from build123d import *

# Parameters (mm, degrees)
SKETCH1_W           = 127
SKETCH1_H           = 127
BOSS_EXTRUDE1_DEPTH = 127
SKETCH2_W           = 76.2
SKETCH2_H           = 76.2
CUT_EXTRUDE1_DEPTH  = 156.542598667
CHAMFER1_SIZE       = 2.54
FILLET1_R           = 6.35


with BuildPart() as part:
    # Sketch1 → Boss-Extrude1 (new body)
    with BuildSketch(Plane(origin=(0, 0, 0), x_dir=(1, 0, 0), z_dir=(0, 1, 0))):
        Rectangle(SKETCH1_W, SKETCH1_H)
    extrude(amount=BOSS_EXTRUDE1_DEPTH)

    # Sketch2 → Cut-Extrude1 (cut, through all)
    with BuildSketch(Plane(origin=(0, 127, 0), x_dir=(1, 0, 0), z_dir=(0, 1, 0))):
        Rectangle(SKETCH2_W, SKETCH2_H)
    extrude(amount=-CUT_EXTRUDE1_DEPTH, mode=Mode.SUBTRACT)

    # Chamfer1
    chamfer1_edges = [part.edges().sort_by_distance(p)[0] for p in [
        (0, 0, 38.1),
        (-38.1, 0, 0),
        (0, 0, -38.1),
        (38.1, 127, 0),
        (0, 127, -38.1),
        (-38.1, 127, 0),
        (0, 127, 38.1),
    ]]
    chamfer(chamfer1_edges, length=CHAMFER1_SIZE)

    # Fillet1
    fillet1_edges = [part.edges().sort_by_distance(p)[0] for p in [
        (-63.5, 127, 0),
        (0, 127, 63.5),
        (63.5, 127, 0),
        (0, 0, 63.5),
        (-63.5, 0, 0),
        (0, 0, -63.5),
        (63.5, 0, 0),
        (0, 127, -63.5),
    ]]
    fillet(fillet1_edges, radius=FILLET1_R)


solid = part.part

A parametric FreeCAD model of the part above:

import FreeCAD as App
import Part
import Sketcher

V = App.Vector
Q = App.Units.Quantity


def edges_at(feature, points):
    """Names of the edges that pass closest to the given points."""
    edges = feature.Shape.Edges
    near = lambda p: min(range(len(edges)), key=lambda i: edges[i].distToShape(Part.Vertex(*p))[0])
    return sorted({f"Edge{near(p) + 1}" for p in points})


def add_polygon(sketch, points):
    """Adds a closed chain of lines whose ends are joined by coincident constraints."""
    first, n = sketch.GeometryCount, len(points)
    for a, b in zip(points, points[1:] + points[:1]):
        sketch.addGeometry(Part.LineSegment(App.Vector(*a, 0), App.Vector(*b, 0)), False)
    for i in range(n):
        sketch.addConstraint(Sketcher.Constraint("Coincident", first + i, 2, first + (i + 1) % n, 1))

doc = App.newDocument("Part")
body = doc.addObject("PartDesign::Body", "Body")

# Sketch on XZ plane
sketch1 = body.newObject("Sketcher::SketchObject", "Sketch")
sketch1.AttachmentSupport = (doc.getObject("XZ_Plane"), [""])
sketch1.MapMode = "FlatFace"
add_polygon(sketch1, [(-63.5, -63.5), (-63.5, 63.5), (63.5, 63.5), (63.5, -63.5)])  # lines 0-3
sketch1.addConstraint(Sketcher.Constraint("Vertical", 0))
sketch1.addConstraint(Sketcher.Constraint("Horizontal", 1))
sketch1.addConstraint(Sketcher.Constraint("Vertical", 2))
sketch1.addConstraint(Sketcher.Constraint("Horizontal", 3))
sketch1.addConstraint(Sketcher.Constraint("Symmetric", 0, 2, 2, 2, -1, 1))
sketch1.addConstraint(Sketcher.Constraint("Equal", 3, 0))
sketch1.addConstraint(Sketcher.Constraint("DistanceX", 1, 1, 1, 2, Q("5 in")))
pad1 = body.newObject("PartDesign::Pad", "Pad")
pad1.Profile = sketch1
pad1.Length = Q("5 in")
pad1.Reversed = True

# Sketch on XZ plane
sketch2 = body.newObject("Sketcher::SketchObject", "Sketch001")
sketch2.AttachmentSupport = (doc.getObject("XZ_Plane"), [""])
sketch2.MapMode = "FlatFace"
sketch2.AttachmentOffset = App.Placement(V(0, 0, -5 * 25.4), App.Rotation())
add_polygon(sketch2, [(-38.1, -38.1), (-38.1, 38.1), (38.1, 38.1), (38.1, -38.1)])  # lines 0-3
sketch2.addConstraint(Sketcher.Constraint("Vertical", 0))
sketch2.addConstraint(Sketcher.Constraint("Horizontal", 1))
sketch2.addConstraint(Sketcher.Constraint("Vertical", 2))
sketch2.addConstraint(Sketcher.Constraint("Horizontal", 3))
sketch2.addConstraint(Sketcher.Constraint("Symmetric", 0, 2, 2, 2, -1, 1))
sketch2.addConstraint(Sketcher.Constraint("Equal", 3, 0))
sketch2.addConstraint(Sketcher.Constraint("DistanceX", 1, 1, 1, 2, Q("3 in")))
pocket1 = body.newObject("PartDesign::Pocket", "Pocket")
pocket1.Profile = sketch2
pocket1.Type = "ThroughAll"
pocket1.Reversed = True
doc.recompute()

chamfer = body.newObject("PartDesign::Chamfer", "Chamfer")
chamfer.Base = (pocket1, edges_at(pocket1, [
    (0, 0, 38.1),
    (-38.1, 0, 0),
    (0, 0, -38.1),
    (38.1, 127, 0),
    (0, 127, -38.1),
    (-38.1, 127, 0),
    (0, 127, 38.1),
]))
chamfer.Size = Q("0.1 in")
doc.recompute()

fillet = body.newObject("PartDesign::Fillet", "Fillet")
fillet.Base = (chamfer, edges_at(chamfer, [
    (-63.5, 127, 0),
    (0, 127, 63.5),
    (63.5, 127, 0),
    (0, 0, 63.5),
    (-63.5, 0, 0),
    (0, 0, -63.5),
    (63.5, 0, 0),
    (0, 127, -63.5),
]))
fillet.Radius = Q("0.25 in")

doc.recompute()
